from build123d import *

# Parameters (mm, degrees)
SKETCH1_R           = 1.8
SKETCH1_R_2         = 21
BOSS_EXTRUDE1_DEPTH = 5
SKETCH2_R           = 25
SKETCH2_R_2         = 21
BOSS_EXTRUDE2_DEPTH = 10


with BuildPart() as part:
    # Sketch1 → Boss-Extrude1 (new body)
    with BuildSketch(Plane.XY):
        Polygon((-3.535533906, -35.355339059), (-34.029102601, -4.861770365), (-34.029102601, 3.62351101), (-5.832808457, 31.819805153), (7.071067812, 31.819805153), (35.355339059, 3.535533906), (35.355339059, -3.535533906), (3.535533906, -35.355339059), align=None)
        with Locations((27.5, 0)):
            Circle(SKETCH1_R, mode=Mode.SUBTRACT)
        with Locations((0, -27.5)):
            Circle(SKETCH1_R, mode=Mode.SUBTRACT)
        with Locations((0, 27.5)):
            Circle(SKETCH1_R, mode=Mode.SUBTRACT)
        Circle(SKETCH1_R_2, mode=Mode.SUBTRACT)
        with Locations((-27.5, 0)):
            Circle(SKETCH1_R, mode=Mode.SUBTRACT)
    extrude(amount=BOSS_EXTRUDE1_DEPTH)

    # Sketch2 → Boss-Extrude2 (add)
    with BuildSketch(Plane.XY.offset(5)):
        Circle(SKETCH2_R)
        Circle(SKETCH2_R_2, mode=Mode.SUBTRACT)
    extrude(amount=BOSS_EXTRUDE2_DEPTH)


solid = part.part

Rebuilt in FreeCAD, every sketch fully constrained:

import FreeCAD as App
import Part
import Sketcher
from FreeCAD import Vector
Q = App.Units.Quantity

doc = App.newDocument("Part")
params = doc.addObject("Spreadsheet::Sheet", "Params")
for row, (alias, value) in enumerate([
    ("sketch1_diameter", "42 mm"),
    ("sketch1_diameter2", "3.6 mm"),
    ("sketch1_length", "45 mm"),
    ("sketch1_length2", "40 mm"),
    ("pad1_length", "5 mm"),
    ("sketch2_diameter", "50 mm"),
    ("sketch2_diameter2", "42 mm"),
    ("pad2_length", "10 mm"),
], start=1):
    params.set(f"A{row}", alias)
    params.set(f"B{row}", "=" + value)
    params.setAlias(f"B{row}", alias)

body = doc.addObject("PartDesign::Body", "Body")

sketch1 = body.newObject("Sketcher::SketchObject", "Sketch")
sketch1.AttachmentSupport = (doc.getObject("XY_Plane"), [""])
sketch1.MapMode = "FlatFace"
sketch1.addGeometry([
    Part.LineSegment(Vector(-34, -4.9, 0), Vector(-3.5, -35.4, 0)),
    Part.LineSegment(Vector(-3.5, -35.4, 0), Vector(3.5, -35.4, 0)),
    Part.LineSegment(Vector(3.5, -35.4, 0), Vector(35.4, -3.5, 0)),
    Part.LineSegment(Vector(35.4, -3.5, 0), Vector(35.4, 3.5, 0)),
    Part.LineSegment(Vector(35.4, 3.5, 0), Vector(7.1, 31.8, 0)),
    Part.LineSegment(Vector(7.1, 31.8, 0), Vector(-5.8, 31.8, 0)),
    Part.LineSegment(Vector(-5.8, 31.8, 0), Vector(-34, 3.6, 0)),
    Part.LineSegment(Vector(-34, 3.6, 0), Vector(-34, -4.9, 0)),
    Part.Circle(Vector(0, -27.5, 0), Vector(0, 0, 1), 1.8),
    Part.Circle(Vector(27.5, 0, 0), Vector(0, 0, 1), 1.8),
    Part.Circle(Vector(0, 0, 0), Vector(0, 0, 1), 21),
    Part.Circle(Vector(-27.5, 0, 0), Vector(0, 0, 1), 1.8),
    Part.Circle(Vector(0, 27.5, 0), Vector(0, 0, 1), 1.8),
], False)
sketch1.addConstraint([
    Sketcher.Constraint("Coincident", 0, 2, 1, 1),
    Sketcher.Constraint("Coincident", 1, 2, 2, 1),
    Sketcher.Constraint("Coincident", 2, 2, 3, 1),
    Sketcher.Constraint("Coincident", 3, 2, 4, 1),
    Sketcher.Constraint("Coincident", 4, 2, 5, 1),
    Sketcher.Constraint("Coincident", 5, 2, 6, 1),
    Sketcher.Constraint("Coincident", 6, 2, 7, 1),
    Sketcher.Constraint("Coincident", 7, 2, 0, 1),
    Sketcher.Constraint("Horizontal", 1),
    Sketcher.Constraint("Vertical", 3),
    Sketcher.Constraint("Horizontal", 5),
    Sketcher.Constraint("Vertical", 7),
    Sketcher.Constraint("Coincident", 10, 3, -1, 1),
    Sketcher.Constraint("Equal", 8, 9),
    Sketcher.Constraint("Equal", 9, 11),
    Sketcher.Constraint("Equal", 11, 12),
    Sketcher.Constraint("Symmetric", 9, 3, 11, 3, -1, 1),
    Sketcher.Constraint("Symmetric", 8, 3, 12, 3, -1, 1),
    Sketcher.Constraint("PointOnObject", 8, 3, -2),
    Sketcher.Constraint("PointOnObject", 9, 3, -1),
    Sketcher.Constraint("Perpendicular", 0, 2),
    Sketcher.Constraint("Perpendicular", 2, 4),
    Sketcher.Constraint("Perpendicular", 4, 6),
    Sketcher.Constraint("Equal", 1, 3),
    Sketcher.Constraint("Diameter", 10, 42.0),
    Sketcher.Constraint("Diameter", 8, 3.6),
    Sketcher.Constraint("Angle", 0, Q("-45 deg")),
    Sketcher.Constraint("Distance", 2, 45.0),
    Sketcher.Constraint("Distance", 4, 40.0),
    Sketcher.Constraint("DistanceX", 11, 3, 9, 3, 55.0),
    Sketcher.Constraint("DistanceY", 8, 3, 12, 3, 55.0),
    Sketcher.Constraint("DistanceY", 7, 2, 7, 1, 8.485281),
    Sketcher.Constraint("Distance", 0, 43.124418),
    Sketcher.Constraint("Distance", 6, 39.875582),
    Sketcher.Constraint("DistanceY", 0, 2, -1, 1, 35.355339),
    Sketcher.Constraint("DistanceX", -1, 1, 2, 2, 35.355339),
])
sketch1.setExpression("Constraints[24]", "Params.sketch1_diameter")
sketch1.setExpression("Constraints[25]", "Params.sketch1_diameter2")
sketch1.setExpression("Constraints[27]", "Params.sketch1_length")
sketch1.setExpression("Constraints[28]", "Params.sketch1_length2")
pad1 = body.newObject("PartDesign::Pad", "Pad")
pad1.Profile = sketch1
pad1.setExpression("Length", "Params.pad1_length")

sketch2 = body.newObject("Sketcher::SketchObject", "Sketch001")
sketch2.AttachmentSupport = (doc.getObject("XY_Plane"), [""])
sketch2.MapMode = "FlatFace"
sketch2.AttachmentOffset = App.Placement(Vector(0, 0, 5), App.Rotation())
sketch2.addGeometry([
    Part.Circle(Vector(0, 0, 0), Vector(0, 0, 1), 25),
    Part.Circle(Vector(0, 0, 0), Vector(0, 0, 1), 21),
], False)
sketch2.addConstraint([
    Sketcher.Constraint("Coincident", 0, 3, -1, 1),
    Sketcher.Constraint("Coincident", 1, 3, -1, 1),
    Sketcher.Constraint("Diameter", 0, 50.0),
    Sketcher.Constraint("Diameter", 1, 42.0),
])
sketch2.setExpression("Constraints[2]", "Params.sketch2_diameter")
sketch2.setExpression("Constraints[3]", "Params.sketch2_diameter2")
pad2 = body.newObject("PartDesign::Pad", "Pad001")
pad2.Profile = sketch2
pad2.setExpression("Length", "Params.pad2_length")

doc.recompute()
